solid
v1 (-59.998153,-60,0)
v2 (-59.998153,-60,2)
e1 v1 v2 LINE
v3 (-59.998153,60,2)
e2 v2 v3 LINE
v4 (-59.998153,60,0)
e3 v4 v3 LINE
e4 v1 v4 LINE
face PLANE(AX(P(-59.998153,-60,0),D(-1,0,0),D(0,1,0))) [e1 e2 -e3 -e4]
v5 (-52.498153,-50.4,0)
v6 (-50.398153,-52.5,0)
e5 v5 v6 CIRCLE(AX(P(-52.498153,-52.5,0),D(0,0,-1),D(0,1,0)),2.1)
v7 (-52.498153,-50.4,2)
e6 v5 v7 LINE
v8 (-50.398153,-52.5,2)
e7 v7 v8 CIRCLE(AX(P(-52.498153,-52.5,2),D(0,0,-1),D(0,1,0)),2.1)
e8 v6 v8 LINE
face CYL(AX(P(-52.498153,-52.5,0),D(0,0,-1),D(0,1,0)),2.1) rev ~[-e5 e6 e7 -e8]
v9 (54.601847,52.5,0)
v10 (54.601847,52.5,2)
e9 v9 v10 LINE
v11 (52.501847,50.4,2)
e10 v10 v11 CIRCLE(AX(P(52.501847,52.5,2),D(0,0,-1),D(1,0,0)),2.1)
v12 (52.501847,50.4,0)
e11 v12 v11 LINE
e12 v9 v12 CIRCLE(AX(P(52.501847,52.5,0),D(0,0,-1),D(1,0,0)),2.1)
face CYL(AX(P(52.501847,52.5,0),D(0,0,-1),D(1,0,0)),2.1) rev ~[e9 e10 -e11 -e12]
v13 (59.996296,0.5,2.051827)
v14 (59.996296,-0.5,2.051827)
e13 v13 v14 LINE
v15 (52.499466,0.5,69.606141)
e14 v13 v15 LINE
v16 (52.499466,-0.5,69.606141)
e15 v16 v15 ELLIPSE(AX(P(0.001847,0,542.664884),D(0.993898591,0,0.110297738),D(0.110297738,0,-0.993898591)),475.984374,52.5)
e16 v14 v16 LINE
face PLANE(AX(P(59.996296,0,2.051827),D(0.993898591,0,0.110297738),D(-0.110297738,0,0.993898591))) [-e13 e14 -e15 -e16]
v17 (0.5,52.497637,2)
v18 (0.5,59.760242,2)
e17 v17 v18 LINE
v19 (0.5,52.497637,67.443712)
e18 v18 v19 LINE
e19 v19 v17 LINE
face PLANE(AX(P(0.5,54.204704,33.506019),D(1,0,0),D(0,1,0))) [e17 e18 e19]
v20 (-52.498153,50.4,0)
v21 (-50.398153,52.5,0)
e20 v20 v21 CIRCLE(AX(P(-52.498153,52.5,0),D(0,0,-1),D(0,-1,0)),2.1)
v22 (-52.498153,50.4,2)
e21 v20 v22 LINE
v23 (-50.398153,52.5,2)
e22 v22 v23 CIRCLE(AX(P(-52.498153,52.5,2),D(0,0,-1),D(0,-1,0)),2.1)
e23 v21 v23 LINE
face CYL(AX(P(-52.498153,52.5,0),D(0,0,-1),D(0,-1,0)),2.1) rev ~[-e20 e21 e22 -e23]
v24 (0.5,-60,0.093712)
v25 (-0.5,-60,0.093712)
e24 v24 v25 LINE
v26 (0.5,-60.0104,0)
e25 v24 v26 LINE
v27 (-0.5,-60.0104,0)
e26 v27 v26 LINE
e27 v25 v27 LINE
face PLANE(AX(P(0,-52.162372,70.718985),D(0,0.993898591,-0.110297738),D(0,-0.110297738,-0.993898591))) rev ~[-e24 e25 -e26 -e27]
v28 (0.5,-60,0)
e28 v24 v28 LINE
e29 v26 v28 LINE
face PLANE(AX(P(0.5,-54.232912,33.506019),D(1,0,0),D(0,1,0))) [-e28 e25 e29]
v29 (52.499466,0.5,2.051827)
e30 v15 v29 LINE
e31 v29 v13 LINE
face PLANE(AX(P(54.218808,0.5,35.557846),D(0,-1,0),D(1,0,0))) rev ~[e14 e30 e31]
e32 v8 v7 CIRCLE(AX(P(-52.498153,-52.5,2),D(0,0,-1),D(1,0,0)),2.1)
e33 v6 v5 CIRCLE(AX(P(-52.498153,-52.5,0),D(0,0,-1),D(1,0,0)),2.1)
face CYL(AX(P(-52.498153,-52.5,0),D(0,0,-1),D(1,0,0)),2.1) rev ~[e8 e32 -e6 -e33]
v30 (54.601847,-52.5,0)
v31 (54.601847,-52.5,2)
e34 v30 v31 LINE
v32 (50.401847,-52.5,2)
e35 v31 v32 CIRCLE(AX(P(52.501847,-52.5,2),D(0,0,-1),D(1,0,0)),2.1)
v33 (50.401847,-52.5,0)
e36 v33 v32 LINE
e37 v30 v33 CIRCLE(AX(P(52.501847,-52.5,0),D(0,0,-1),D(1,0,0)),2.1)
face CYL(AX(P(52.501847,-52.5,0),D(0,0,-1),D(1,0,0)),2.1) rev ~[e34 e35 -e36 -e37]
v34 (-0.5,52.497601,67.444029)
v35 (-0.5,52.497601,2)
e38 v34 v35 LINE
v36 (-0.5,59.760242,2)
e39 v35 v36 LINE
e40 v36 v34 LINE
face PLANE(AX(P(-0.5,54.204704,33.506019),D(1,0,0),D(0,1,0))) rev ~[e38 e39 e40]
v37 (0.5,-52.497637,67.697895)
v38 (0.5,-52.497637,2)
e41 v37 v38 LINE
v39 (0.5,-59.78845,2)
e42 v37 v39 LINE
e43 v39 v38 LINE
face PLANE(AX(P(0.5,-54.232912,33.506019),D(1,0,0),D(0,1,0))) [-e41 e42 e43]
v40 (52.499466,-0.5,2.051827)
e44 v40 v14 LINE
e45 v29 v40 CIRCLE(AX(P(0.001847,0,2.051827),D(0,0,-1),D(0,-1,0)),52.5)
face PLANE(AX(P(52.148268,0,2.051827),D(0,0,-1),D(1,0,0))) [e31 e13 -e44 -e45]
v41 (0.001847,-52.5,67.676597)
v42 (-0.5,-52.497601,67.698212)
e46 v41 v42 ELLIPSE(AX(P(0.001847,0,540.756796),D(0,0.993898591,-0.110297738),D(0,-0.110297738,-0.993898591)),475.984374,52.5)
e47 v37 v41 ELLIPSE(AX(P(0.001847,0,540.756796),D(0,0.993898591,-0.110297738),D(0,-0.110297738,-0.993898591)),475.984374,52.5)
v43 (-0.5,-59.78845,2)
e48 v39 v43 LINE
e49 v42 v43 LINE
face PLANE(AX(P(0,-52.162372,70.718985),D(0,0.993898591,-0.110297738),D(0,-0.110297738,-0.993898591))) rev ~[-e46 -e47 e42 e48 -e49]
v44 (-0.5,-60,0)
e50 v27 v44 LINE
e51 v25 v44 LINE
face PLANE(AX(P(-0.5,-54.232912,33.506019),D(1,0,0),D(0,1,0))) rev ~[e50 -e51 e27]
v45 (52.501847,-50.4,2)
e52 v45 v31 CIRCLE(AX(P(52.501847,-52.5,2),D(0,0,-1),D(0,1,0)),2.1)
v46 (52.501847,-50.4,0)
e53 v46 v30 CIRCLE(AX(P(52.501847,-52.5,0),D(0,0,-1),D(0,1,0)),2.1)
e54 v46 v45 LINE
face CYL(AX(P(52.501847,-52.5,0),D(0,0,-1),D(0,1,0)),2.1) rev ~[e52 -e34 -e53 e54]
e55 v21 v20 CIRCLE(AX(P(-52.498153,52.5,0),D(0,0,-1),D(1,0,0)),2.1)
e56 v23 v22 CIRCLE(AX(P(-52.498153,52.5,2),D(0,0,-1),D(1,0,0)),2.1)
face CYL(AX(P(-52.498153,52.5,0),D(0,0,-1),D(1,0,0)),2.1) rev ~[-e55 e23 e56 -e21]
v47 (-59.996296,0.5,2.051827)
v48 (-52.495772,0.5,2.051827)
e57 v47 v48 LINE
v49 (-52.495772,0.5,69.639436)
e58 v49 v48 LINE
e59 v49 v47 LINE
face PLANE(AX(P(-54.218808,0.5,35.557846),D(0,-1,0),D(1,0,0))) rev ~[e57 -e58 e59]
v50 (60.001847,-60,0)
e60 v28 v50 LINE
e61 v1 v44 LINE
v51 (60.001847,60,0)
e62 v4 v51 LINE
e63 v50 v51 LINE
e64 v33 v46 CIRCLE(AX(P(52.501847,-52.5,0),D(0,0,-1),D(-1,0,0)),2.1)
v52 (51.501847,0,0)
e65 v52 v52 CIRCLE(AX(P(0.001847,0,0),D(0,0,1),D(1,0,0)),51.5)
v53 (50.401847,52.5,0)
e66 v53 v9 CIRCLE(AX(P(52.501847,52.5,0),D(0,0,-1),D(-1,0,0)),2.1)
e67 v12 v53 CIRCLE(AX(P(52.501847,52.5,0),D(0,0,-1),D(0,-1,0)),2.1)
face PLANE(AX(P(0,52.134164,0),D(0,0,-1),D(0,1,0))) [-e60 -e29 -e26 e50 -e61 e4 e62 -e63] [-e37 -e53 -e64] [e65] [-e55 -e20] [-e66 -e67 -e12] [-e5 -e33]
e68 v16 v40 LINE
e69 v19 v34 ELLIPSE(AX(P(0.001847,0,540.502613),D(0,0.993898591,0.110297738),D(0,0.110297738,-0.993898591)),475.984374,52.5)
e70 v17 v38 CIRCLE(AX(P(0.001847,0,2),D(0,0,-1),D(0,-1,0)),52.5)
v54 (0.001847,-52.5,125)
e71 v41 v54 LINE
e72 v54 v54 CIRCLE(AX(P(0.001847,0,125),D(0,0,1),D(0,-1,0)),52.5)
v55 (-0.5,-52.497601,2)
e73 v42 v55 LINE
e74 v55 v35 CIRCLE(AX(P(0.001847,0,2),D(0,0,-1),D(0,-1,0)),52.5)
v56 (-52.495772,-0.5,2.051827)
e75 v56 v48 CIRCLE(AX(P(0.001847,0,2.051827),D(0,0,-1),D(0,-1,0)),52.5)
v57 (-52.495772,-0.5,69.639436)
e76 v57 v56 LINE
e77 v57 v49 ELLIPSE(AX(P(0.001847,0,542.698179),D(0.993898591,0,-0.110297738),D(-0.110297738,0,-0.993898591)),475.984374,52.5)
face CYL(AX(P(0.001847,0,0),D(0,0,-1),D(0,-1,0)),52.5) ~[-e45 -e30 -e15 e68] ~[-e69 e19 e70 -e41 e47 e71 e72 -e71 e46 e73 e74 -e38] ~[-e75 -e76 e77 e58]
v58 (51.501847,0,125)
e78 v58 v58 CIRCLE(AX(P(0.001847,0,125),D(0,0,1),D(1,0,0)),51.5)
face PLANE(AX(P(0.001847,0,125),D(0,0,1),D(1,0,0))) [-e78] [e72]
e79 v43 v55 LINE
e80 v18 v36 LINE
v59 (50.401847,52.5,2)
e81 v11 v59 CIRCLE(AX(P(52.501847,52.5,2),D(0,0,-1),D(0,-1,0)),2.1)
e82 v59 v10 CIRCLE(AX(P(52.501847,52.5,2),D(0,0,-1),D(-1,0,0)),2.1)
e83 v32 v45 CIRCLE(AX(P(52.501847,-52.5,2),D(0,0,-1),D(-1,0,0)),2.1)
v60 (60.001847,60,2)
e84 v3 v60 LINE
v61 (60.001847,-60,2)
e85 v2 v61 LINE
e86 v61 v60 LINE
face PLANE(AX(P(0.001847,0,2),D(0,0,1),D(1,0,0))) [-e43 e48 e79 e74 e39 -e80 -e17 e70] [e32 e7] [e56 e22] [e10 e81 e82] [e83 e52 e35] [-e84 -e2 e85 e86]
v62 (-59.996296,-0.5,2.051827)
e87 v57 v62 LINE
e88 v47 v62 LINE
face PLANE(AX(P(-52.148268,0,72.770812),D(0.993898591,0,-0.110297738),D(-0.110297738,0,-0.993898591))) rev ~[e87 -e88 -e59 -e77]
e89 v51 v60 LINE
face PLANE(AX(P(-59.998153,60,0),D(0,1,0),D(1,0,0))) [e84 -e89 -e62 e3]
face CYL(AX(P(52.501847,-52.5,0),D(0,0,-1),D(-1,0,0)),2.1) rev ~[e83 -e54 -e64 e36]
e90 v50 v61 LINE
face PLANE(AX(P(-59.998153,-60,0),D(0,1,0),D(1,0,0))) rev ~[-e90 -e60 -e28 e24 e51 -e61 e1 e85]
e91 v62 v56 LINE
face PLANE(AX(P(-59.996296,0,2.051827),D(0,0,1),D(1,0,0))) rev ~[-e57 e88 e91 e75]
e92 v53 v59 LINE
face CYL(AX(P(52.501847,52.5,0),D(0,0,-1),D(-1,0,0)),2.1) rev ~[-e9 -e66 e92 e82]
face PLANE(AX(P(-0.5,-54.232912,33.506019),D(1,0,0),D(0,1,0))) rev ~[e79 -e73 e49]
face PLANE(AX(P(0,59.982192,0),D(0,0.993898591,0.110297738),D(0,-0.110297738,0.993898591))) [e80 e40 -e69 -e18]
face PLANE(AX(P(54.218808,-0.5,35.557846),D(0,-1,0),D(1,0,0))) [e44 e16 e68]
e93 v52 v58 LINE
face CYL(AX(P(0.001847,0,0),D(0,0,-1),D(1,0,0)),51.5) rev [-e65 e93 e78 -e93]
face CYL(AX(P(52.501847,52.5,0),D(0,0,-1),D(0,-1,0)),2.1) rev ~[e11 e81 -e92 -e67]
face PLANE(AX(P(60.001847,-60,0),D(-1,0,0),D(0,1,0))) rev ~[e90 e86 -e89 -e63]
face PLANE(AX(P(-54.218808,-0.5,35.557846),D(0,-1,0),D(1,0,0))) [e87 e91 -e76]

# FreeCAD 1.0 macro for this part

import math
import FreeCAD as App
import Part
import Sketcher
from FreeCAD import Vector


def add_polygon(sketch, points):
    """Adds a closed chain of lines whose ends are joined by coincident constraints."""
    first, n = sketch.GeometryCount, len(points)
    for a, b in zip(points, points[1:] + points[:1]):
        sketch.addGeometry(Part.LineSegment(App.Vector(*a, 0), App.Vector(*b, 0)), False)
    for i in range(n):
        sketch.addConstraint(Sketcher.Constraint("Coincident", first + i, 2, first + (i + 1) % n, 1))

doc = App.newDocument("Part")
body = doc.addObject("PartDesign::Body", "Body")

# Sketch on XY plane
sketch1 = body.newObject("Sketcher::SketchObject", "Sketch")
sketch1.AttachmentSupport = (doc.getObject("XY_Plane"), [""])
sketch1.MapMode = "FlatFace"
add_polygon(sketch1, [(-60, 60), (-60, -60), (60, -60), (60, 60)])  # lines 0-3
sketch1.addGeometry(Part.ArcOfCircle(Part.Circle(Vector(-52.5, -52.5, 0), Vector(0, 0, 1), 2.1), math.radians(90), math.radians(360)), False)  # 4
sketch1.addGeometry(Part.ArcOfCircle(Part.Circle(Vector(-52.5, -52.5, 0), Vector(0, 0, 1), 2.1), math.radians(0), math.radians(90)), False)  # 5
sketch1.addGeometry(Part.Circle(Vector(0, 0, 0), Vector(0, 0, 1), 51.5), False)  # 6
sketch1.addGeometry(Part.ArcOfCircle(Part.Circle(Vector(52.5, -52.5, 0), Vector(0, 0, 1), 2.1), math.radians(0), math.radians(90)), False)  # 7
sketch1.addGeometry(Part.ArcOfCircle(Part.Circle(Vector(52.5, -52.5, 0), Vector(0, 0, 1), 2.1), math.radians(180), math.radians(360)), False)  # 8
sketch1.addGeometry(Part.ArcOfCircle(Part.Circle(Vector(52.5, -52.5, 0), Vector(0, 0, 1), 2.1), math.radians(90), math.radians(180)), False)  # 9
sketch1.addGeometry(Part.ArcOfCircle(Part.Circle(Vector(-52.5, 52.5, 0), Vector(0, 0, 1), 2.1), math.radians(0), math.radians(270)), False)  # 10
sketch1.addGeometry(Part.ArcOfCircle(Part.Circle(Vector(-52.5, 52.5, 0), Vector(0, 0, 1), 2.1), math.radians(-90), math.radians(0)), False)  # 11
sketch1.addGeometry(Part.ArcOfCircle(Part.Circle(Vector(52.5, 52.5, 0), Vector(0, 0, 1), 2.1), math.radians(0), math.radians(180)), False)  # 12
sketch1.addGeometry(Part.ArcOfCircle(Part.Circle(Vector(52.5, 52.5, 0), Vector(0, 0, 1), 2.1), math.radians(-90), math.radians(0)), False)  # 13
sketch1.addGeometry(Part.ArcOfCircle(Part.Circle(Vector(52.5, 52.5, 0), Vector(0, 0, 1), 2.1), math.radians(-180), math.radians(-90)), False)  # 14
sketch1.addConstraint(Sketcher.Constraint("Tangent", 4, 1, 5, 2))
sketch1.addConstraint(Sketcher.Constraint("Coincident", 5, 1, 4, 2))
sketch1.addConstraint(Sketcher.Constraint("Tangent", 7, 1, 8, 2))
sketch1.addConstraint(Sketcher.Constraint("Tangent", 8, 1, 9, 2))
sketch1.addConstraint(Sketcher.Constraint("Tangent", 9, 1, 7, 2))
sketch1.addConstraint(Sketcher.Constraint("Tangent", 10, 1, 11, 2))
sketch1.addConstraint(Sketcher.Constraint("Coincident", 11, 1, 10, 2))
sketch1.addConstraint(Sketcher.Constraint("Tangent", 12, 1, 13, 2))
sketch1.addConstraint(Sketcher.Constraint("Tangent", 13, 1, 14, 2))
sketch1.addConstraint(Sketcher.Constraint("Tangent", 14, 1, 12, 2))
sketch1.addConstraint(Sketcher.Constraint("Vertical", 0))
sketch1.addConstraint(Sketcher.Constraint("Horizontal", 1))
sketch1.addConstraint(Sketcher.Constraint("Vertical", 2))
sketch1.addConstraint(Sketcher.Constraint("Horizontal", 3))
sketch1.addConstraint(Sketcher.Constraint("Equal", 5, 7))
sketch1.addConstraint(Sketcher.Constraint("Equal", 9, 10))
sketch1.addConstraint(Sketcher.Constraint("Equal", 11, 12))
sketch1.addConstraint(Sketcher.Constraint("Symmetric", 4, 3, 10, 3, -1))
sketch1.addConstraint(Sketcher.Constraint("Symmetric", 7, 3, 12, 3, -1))
sketch1.addConstraint(Sketcher.Constraint("PointOnObject", 6, 3, -1))
sketch1.addConstraint(Sketcher.Constraint("Horizontal", 5, 3, 7, 3))
sketch1.addConstraint(Sketcher.Constraint("Horizontal", 9, 3, 5, 1))
sketch1.addConstraint(Sketcher.Constraint("Horizontal", 5, 1, 7, 1))
sketch1.addConstraint(Sketcher.Constraint("Horizontal", 7, 1, 8, 1))
sketch1.addConstraint(Sketcher.Constraint("Horizontal", 14, 3, 10, 1))
sketch1.addConstraint(Sketcher.Constraint("Horizontal", 10, 1, 12, 1))
sketch1.addConstraint(Sketcher.Constraint("Horizontal", 12, 1, 14, 1))
sketch1.addConstraint(Sketcher.Constraint("Vertical", 11, 3, 4, 1))
sketch1.addConstraint(Sketcher.Constraint("Vertical", 14, 3, 9, 1))
sketch1.addConstraint(Sketcher.Constraint("Vertical", 4, 1, 11, 1))
sketch1.addConstraint(Sketcher.Constraint("Vertical", 9, 1, 13, 1))
sketch1.addConstraint(Sketcher.Constraint("Equal", 3, 0))
sketch1.addConstraint(Sketcher.Constraint("Diameter", 6, 103.0))
sketch1.addConstraint(Sketcher.Constraint("Radius", 4, 2.1))
sketch1.addConstraint(Sketcher.Constraint("DistanceX", 1, 1, 1, 2, 120.0))
sketch1.addConstraint(Sketcher.Constraint("DistanceY", 0, 2, -1, 1, 60.0))
sketch1.addConstraint(Sketcher.Constraint("DistanceX", 4, 3, 7, 3, 105.0))
sketch1.addConstraint(Sketcher.Constraint("DistanceY", 4, 3, 10, 3, 105.0))
sketch1.addConstraint(Sketcher.Constraint("DistanceX", 0, 2, 6, 3, 60.0))
sketch1.addConstraint(Sketcher.Constraint("DistanceX", 4, 3, 6, 3, 52.5))
sketch1.addConstraint(Sketcher.Constraint("DistanceX", 4, 3, -1, 1, 52.498153))
pad1 = body.newObject("PartDesign::Pad", "Pad")
pad1.Profile = sketch1
pad1.Length = 2

# Sketch on XY plane
sketch2 = body.newObject("Sketcher::SketchObject", "Sketch001")
sketch2.AttachmentSupport = (doc.getObject("XY_Plane"), [""])
sketch2.MapMode = "FlatFace"
sketch2.addGeometry(Part.Circle(Vector(0, 0, 0), Vector(0, 0, 1), 52), False)
sketch2.addGeometry(Part.Circle(Vector(0, 0, 0), Vector(0, 0, 1), 52), False)
sketch2.addConstraint(Sketcher.Constraint("Coincident", 1, 3, 0, 3))
sketch2.addConstraint(Sketcher.Constraint("PointOnObject", 0, 3, -1))
sketch2.addConstraint(Sketcher.Constraint("Diameter", 0, 105.0))
sketch2.addConstraint(Sketcher.Constraint("Diameter", 1, 103.0))
sketch2.addConstraint(Sketcher.Constraint("DistanceX", -1, 1, 0, 3, 0.001847))
pad2 = body.newObject("PartDesign::Pad", "Pad001")
pad2.Profile = sketch2
pad2.Length = 125

# Sketch on XZ plane
sketch3 = body.newObject("Sketcher::SketchObject", "Sketch002")
sketch3.AttachmentSupport = (doc.getObject("XZ_Plane"), [""])
sketch3.MapMode = "FlatFace"
add_polygon(sketch3, [(-52, 73), (-60, 2), (-52, 2)])  # lines 0-2
add_polygon(sketch3, [(52, 2), (60, 2), (52, 73)])  # lines 3-5
sketch3.addConstraint(Sketcher.Constraint("Horizontal", 1))
sketch3.addConstraint(Sketcher.Constraint("Vertical", 2))
sketch3.addConstraint(Sketcher.Constraint("Horizontal", 3))
sketch3.addConstraint(Sketcher.Constraint("Vertical", 5))
sketch3.addConstraint(Sketcher.Constraint("Symmetric", 0, 2, 3, 2, -2))
sketch3.addConstraint(Sketcher.Constraint("Symmetric", 2, 2, 4, 2, -2))
sketch3.addConstraint(Sketcher.Constraint("DistanceX", 1, 1, 1, 2, 7.848028))
sketch3.addConstraint(Sketcher.Constraint("Distance", 0, 71.153119))
sketch3.addConstraint(Sketcher.Constraint("DistanceY", -1, 1, 2, 2, 72.770812))
sketch3.addConstraint(Sketcher.Constraint("DistanceX", 0, 2, 3, 2, 119.992591))
pad3 = body.newObject("PartDesign::Pad", "Pad002")
pad3.Profile = sketch3
pad3.Length = 1
pad3.Midplane = True

# Sketch on YZ plane
sketch4 = body.newObject("Sketcher::SketchObject", "Sketch003")
sketch4.AttachmentSupport = (doc.getObject("YZ_Plane"), [""])
sketch4.MapMode = "FlatFace"
add_polygon(sketch4, [(-52, 71), (-60, 0), (-52, 0)])  # lines 0-2
add_polygon(sketch4, [(52, 0), (60, 0), (52, 71)])  # lines 3-5
sketch4.addConstraint(Sketcher.Constraint("Horizontal", 1))
sketch4.addConstraint(Sketcher.Constraint("Vertical", 2))
sketch4.addConstraint(Sketcher.Constraint("Horizontal", 3))
sketch4.addConstraint(Sketcher.Constraint("Vertical", 5))
sketch4.addConstraint(Sketcher.Constraint("PointOnObject", 0, 2, -1))
sketch4.addConstraint(Sketcher.Constraint("PointOnObject", 3, 2, -1))
sketch4.addConstraint(Sketcher.Constraint("Horizontal", 2, 2, 4, 2))
sketch4.addConstraint(Sketcher.Constraint("Equal", 1, 3))
sketch4.addConstraint(Sketcher.Constraint("DistanceX", 1, 1, 1, 2, 7.848028))
sketch4.addConstraint(Sketcher.Constraint("DistanceX", 0, 2, -1, 1, 60.0104))
sketch4.addConstraint(Sketcher.Constraint("Distance", 0, 71.153119))
sketch4.addConstraint(Sketcher.Constraint("DistanceX", -1, 1, 3, 2, 59.982192))
pad4 = body.newObject("PartDesign::Pad", "Pad003")
pad4.Profile = sketch4
pad4.Length = 1
pad4.Midplane = True

doc.recompute()
